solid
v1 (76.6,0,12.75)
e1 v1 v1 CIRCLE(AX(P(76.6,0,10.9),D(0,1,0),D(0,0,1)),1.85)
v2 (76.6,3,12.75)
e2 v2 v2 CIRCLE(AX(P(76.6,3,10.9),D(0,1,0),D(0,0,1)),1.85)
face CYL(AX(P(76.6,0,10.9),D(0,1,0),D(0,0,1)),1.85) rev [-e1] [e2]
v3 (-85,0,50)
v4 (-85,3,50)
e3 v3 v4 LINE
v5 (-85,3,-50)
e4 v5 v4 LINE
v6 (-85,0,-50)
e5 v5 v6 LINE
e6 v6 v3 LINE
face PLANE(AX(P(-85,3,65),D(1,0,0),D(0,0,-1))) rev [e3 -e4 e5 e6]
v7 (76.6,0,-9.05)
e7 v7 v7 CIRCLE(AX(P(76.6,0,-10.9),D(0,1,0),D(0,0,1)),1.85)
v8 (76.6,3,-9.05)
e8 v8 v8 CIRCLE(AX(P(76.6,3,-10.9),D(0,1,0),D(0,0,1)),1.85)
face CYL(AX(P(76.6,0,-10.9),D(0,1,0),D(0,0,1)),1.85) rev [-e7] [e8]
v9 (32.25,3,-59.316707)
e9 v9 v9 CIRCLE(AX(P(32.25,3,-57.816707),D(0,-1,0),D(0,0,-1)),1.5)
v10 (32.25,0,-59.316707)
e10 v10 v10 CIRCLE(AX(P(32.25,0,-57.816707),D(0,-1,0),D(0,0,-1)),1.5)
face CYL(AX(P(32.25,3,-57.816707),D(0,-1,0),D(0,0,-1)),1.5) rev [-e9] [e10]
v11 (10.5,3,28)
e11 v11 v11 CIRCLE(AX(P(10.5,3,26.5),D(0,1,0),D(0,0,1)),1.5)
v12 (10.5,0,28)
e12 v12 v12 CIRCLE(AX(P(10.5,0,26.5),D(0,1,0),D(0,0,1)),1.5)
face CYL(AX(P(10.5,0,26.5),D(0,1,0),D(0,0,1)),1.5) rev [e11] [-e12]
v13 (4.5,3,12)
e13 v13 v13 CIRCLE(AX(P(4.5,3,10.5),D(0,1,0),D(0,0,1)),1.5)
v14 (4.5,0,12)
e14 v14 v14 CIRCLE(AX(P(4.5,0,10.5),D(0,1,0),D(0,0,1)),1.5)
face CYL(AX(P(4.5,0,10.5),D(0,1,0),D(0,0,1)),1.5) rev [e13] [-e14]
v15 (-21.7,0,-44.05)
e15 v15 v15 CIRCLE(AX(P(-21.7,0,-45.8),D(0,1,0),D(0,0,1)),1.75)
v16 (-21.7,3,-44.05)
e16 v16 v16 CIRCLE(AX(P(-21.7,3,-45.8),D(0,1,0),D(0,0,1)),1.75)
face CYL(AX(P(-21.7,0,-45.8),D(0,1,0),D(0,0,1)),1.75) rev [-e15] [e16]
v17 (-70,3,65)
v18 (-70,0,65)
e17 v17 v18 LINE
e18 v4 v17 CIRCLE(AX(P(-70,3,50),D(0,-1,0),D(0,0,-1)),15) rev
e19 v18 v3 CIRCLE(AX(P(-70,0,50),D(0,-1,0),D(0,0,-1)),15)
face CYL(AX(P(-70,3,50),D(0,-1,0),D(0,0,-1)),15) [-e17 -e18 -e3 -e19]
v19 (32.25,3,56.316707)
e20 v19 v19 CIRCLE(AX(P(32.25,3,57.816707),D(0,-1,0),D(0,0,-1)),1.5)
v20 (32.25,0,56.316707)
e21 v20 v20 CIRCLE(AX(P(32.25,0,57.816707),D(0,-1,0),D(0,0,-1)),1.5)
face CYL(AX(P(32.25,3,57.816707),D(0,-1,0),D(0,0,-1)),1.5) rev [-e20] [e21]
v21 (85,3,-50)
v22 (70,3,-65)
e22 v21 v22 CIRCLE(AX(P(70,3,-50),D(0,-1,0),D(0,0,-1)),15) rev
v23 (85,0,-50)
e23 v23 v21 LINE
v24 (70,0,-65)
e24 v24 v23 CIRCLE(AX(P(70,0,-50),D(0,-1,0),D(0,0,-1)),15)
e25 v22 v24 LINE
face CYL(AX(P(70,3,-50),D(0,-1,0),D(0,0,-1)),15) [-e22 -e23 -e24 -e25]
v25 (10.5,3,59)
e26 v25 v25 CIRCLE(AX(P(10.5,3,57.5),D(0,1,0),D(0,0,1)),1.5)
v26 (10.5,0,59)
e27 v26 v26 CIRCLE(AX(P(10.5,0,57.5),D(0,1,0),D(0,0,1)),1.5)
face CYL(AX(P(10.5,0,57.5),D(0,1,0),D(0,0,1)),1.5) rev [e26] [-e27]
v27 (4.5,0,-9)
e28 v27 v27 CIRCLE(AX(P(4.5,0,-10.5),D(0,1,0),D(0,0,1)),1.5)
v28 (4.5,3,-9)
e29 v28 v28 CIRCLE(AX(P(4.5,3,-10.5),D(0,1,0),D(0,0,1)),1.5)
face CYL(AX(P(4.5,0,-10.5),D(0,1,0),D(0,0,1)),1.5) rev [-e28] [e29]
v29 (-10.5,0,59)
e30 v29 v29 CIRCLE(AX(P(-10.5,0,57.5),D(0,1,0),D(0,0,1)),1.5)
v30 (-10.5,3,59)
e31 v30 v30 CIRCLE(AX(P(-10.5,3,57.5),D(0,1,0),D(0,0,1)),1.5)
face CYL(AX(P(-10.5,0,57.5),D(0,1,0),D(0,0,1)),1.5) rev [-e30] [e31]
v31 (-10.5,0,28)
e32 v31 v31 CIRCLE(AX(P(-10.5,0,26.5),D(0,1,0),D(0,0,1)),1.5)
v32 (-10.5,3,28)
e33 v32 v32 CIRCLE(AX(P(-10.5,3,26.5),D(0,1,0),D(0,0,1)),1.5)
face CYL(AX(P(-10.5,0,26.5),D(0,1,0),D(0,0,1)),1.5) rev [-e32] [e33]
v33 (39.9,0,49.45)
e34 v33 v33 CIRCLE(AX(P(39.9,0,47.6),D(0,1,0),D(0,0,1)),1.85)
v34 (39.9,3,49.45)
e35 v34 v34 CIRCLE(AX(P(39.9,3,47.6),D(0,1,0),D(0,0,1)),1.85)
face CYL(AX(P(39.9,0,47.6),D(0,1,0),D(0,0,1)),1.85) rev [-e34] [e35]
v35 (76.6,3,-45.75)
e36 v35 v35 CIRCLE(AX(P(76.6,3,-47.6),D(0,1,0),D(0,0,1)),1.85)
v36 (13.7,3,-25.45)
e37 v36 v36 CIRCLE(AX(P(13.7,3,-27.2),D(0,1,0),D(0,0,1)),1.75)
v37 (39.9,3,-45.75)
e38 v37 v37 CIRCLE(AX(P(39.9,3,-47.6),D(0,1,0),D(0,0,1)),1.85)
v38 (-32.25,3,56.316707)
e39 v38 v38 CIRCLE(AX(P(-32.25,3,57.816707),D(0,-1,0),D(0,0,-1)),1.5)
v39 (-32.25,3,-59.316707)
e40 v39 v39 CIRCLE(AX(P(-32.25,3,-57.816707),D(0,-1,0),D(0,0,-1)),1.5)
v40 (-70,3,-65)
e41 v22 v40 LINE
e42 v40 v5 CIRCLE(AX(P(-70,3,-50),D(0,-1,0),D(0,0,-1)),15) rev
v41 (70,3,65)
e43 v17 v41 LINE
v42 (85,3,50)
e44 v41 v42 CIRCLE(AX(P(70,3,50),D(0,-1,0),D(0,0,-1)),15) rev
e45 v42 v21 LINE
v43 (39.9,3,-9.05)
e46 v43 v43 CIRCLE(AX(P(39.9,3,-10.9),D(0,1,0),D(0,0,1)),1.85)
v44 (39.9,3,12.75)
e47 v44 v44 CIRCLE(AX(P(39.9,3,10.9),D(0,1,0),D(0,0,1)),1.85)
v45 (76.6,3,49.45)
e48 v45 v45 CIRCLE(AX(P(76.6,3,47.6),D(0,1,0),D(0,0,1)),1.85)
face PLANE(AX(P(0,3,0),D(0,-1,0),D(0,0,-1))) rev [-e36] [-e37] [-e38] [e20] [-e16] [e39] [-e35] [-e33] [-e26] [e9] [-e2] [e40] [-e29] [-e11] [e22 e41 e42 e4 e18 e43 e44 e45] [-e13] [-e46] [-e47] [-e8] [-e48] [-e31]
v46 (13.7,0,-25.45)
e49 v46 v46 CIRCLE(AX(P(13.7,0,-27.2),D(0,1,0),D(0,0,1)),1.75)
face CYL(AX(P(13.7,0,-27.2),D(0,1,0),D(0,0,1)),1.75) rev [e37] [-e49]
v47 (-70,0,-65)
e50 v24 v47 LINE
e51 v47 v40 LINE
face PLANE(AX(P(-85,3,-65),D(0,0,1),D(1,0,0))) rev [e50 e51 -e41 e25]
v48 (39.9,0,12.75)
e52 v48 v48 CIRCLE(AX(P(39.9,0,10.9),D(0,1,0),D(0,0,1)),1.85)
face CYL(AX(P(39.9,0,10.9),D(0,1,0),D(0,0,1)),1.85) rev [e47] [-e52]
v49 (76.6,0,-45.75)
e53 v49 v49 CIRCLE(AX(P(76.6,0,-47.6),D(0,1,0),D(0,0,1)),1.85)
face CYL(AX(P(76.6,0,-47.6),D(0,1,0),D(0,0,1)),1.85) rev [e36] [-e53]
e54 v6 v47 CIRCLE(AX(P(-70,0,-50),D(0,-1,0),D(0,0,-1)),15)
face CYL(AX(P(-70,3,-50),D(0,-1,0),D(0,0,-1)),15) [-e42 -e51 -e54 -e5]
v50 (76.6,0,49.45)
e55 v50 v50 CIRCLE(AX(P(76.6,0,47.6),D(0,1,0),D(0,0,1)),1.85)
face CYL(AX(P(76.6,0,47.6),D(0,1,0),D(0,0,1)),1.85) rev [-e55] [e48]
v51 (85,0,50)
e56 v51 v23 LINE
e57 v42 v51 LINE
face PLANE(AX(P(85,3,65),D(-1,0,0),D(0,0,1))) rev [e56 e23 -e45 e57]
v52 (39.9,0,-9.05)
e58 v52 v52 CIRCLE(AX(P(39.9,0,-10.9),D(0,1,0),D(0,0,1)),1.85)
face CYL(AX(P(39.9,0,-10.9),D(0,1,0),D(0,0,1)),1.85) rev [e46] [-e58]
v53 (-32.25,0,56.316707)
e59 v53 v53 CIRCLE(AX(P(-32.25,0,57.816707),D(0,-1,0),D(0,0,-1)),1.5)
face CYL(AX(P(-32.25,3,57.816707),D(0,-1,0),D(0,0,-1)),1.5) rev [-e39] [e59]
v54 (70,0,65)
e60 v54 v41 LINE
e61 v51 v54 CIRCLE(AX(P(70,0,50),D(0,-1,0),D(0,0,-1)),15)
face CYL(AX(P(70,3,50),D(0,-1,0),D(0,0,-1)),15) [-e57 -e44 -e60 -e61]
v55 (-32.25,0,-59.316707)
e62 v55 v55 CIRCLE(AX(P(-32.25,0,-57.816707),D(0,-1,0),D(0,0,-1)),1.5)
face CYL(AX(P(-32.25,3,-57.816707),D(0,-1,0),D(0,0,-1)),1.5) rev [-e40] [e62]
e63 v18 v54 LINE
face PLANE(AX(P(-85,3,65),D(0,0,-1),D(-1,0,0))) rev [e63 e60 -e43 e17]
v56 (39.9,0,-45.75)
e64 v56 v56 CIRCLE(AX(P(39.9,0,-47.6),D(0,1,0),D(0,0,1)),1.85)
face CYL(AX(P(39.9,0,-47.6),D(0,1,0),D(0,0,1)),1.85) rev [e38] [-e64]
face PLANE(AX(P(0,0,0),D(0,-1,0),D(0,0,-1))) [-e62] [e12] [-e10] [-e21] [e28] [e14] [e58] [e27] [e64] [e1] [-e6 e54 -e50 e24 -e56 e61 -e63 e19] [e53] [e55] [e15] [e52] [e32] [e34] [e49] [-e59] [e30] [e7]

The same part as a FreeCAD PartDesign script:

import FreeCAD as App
import Part
import Sketcher
Q = App.Units.Quantity


def edges_at(feature, points):
    """Names of the edges that pass closest to the given points."""
    edges = feature.Shape.Edges
    near = lambda p: min(range(len(edges)), key=lambda i: edges[i].distToShape(Part.Vertex(*p))[0])
    return sorted({f"Edge{near(p) + 1}" for p in points})


def add_polygon(sketch, points):
    """Adds a closed chain of lines whose ends are joined by coincident constraints."""
    first, n = sketch.GeometryCount, len(points)
    for a, b in zip(points, points[1:] + points[:1]):
        sketch.addGeometry(Part.LineSegment(App.Vector(*a, 0), App.Vector(*b, 0)), False)
    for i in range(n):
        sketch.addConstraint(Sketcher.Constraint("Coincident", first + i, 2, first + (i + 1) % n, 1))

doc = App.newDocument("Part")
params = doc.addObject("Spreadsheet::Sheet", "Params")
for row, (alias, value) in enumerate([
    ("sketch1_width", "170 mm"),
    ("sketch1_height", "130 mm"),
    ("pad1_length", "3 mm"),
    ("sketch2_diameter", "3 mm"),
    ("sketch3_diameter", "3 mm"),
    ("sketch3_diameter2", "3.5 mm"),
    ("sketch3_diameter3", "3.7 mm"),
    ("fillet_radius", "15 mm"),
], start=1):
    params.set(f"A{row}", alias)
    params.set(f"B{row}", "=" + value)
    params.setAlias(f"B{row}", alias)

body = doc.addObject("PartDesign::Body", "Body")

# Sketch on XZ plane
sketch1 = doc.addObject("Sketcher::SketchObject", "Sketch")
body.addObject(sketch1)
sketch1.AttachmentSupport = (doc.XZ_Plane, [""])
sketch1.MapMode = "FlatFace"
add_polygon(sketch1, [(-85, -65), (-85, 65), (85, 65), (85, -65)])  # lines 0-3
sketch1.addConstraint([
    Sketcher.Constraint("Vertical", 0),
    Sketcher.Constraint("Horizontal", 1),
    Sketcher.Constraint("Vertical", 2),
    Sketcher.Constraint("Horizontal", 3),
    Sketcher.Constraint("Symmetric", 0, 2, 2, 2, -1, 1),
    Sketcher.Constraint("DistanceX", 1, 1, 1, 2, Q("170 mm")),
    Sketcher.Constraint("DistanceY", 0, 1, 0, 2, Q("130 mm")),
])
sketch1.setExpression("Constraints[9]", "Params.sketch1_width")
sketch1.setExpression("Constraints[10]", "Params.sketch1_height")
pad1 = doc.addObject("PartDesign::Pad", "Pad")
body.addObject(pad1)
pad1.Profile = sketch1
pad1.setExpression("Length", "Params.pad1_length")
pad1.Reversed = True

# Sketch on XZ plane
sketch2 = doc.addObject("Sketcher::SketchObject", "Sketch001")
body.addObject(sketch2)
sketch2.AttachmentSupport = (doc.XZ_Plane, [""])
sketch2.MapMode = "FlatFace"
sketch2.addGeometry([
    Part.Circle(App.Vector(32.2, 57.8, 0), App.Vector(0, 0, 1), 1.5),
    Part.Circle(App.Vector(-32.2, -57.8, 0), App.Vector(0, 0, 1), 1.5),
    Part.Circle(App.Vector(-32.2, 57.8, 0), App.Vector(0, 0, 1), 1.5),
    Part.Circle(App.Vector(32.2, -57.8, 0), App.Vector(0, 0, 1), 1.5),
], False)
sketch2.addConstraint([
    Sketcher.Constraint("Equal", 0, 1),
    Sketcher.Constraint("Equal", 1, 2),
    Sketcher.Constraint("Equal", 2, 3),
    Sketcher.Constraint("Symmetric", 0, 3, 1, 3, -1, 1),
    Sketcher.Constraint("Symmetric", 2, 3, 3, 3, -1, 1),
    Sketcher.Constraint("Symmetric", 0, 3, 2, 3, -2),
    Sketcher.Constraint("Diameter", 0, Q("3 mm")),
    Sketcher.Constraint("DistanceX", 1, 3, 0, 3, Q("64.5 mm")),
    Sketcher.Constraint("DistanceY", -1, 1, 0, 3, Q("57.816707 mm")),
])
sketch2.setExpression("Constraints[6]", "Params.sketch2_diameter")
pocket1 = doc.addObject("PartDesign::Pocket", "Pocket")
body.addObject(pocket1)
pocket1.Profile = sketch2
pocket1.Type = "ThroughAll"

# Sketch on XZ plane
sketch3 = doc.addObject("Sketcher::SketchObject", "Sketch002")
body.addObject(sketch3)
sketch3.AttachmentSupport = (doc.XZ_Plane, [""])
sketch3.MapMode = "FlatFace"
sketch3.AttachmentOffset = App.Placement(App.Vector(0, 0, -3), App.Rotation())
sketch3.addGeometry([
    Part.Circle(App.Vector(13.7, -27.2, 0), App.Vector(0, 0, 1), 1.8),  # 0
    Part.Circle(App.Vector(-21.7, -45.8, 0), App.Vector(0, 0, 1), 1.8),  # 1
    Part.Circle(App.Vector(-10.5, 26.5, 0), App.Vector(0, 0, 1), 1.5),  # 2
    Part.Circle(App.Vector(10.5, 26.5, 0), App.Vector(0, 0, 1), 1.5),  # 3
    Part.Circle(App.Vector(10.5, 57.5, 0), App.Vector(0, 0, 1), 1.5),  # 4
    Part.Circle(App.Vector(-10.5, 57.5, 0), App.Vector(0, 0, 1), 1.5),  # 5
    Part.Circle(App.Vector(76.6, 10.9, 0), App.Vector(0, 0, 1), 1.9),  # 6
    Part.Circle(App.Vector(76.6, 47.6, 0), App.Vector(0, 0, 1), 1.9),  # 7
    Part.Circle(App.Vector(39.9, 47.6, 0), App.Vector(0, 0, 1), 1.9),  # 8
    Part.Circle(App.Vector(39.9, 10.9, 0), App.Vector(0, 0, 1), 1.9),  # 9
    Part.Circle(App.Vector(39.9, -47.6, 0), App.Vector(0, 0, 1), 1.9),  # 10
    Part.Circle(App.Vector(76.6, -47.6, 0), App.Vector(0, 0, 1), 1.9),  # 11
    Part.Circle(App.Vector(76.6, -10.9, 0), App.Vector(0, 0, 1), 1.9),  # 12
    Part.Circle(App.Vector(39.9, -10.9, 0), App.Vector(0, 0, 1), 1.9),  # 13
    Part.Circle(App.Vector(4.5, 10.5, 0), App.Vector(0, 0, 1), 1.5),  # 14
    Part.Circle(App.Vector(4.5, -10.5, 0), App.Vector(0, 0, 1), 1.5),  # 15
], False)
sketch3.addConstraint([
    Sketcher.Constraint("Equal", 0, 1),
    Sketcher.Constraint("Equal", 2, 3),
    Sketcher.Constraint("Equal", 3, 4),
    Sketcher.Constraint("Equal", 4, 5),
    Sketcher.Constraint("Equal", 6, 7),
    Sketcher.Constraint("Equal", 7, 8),
    Sketcher.Constraint("Equal", 8, 9),
    Sketcher.Constraint("Equal", 9, 10),
    Sketcher.Constraint("Equal", 10, 11),
    Sketcher.Constraint("Equal", 11, 12),
    Sketcher.Constraint("Equal", 12, 13),
    Sketcher.Constraint("Equal", 5, 14),
    Sketcher.Constraint("Equal", 14, 15),
    Sketcher.Constraint("Symmetric", 2, 3, 3, 3, -2),
    Sketcher.Constraint("Symmetric", 4, 3, 5, 3, -2),
    Sketcher.Constraint("Symmetric", 8, 3, 10, 3, -1),
    Sketcher.Constraint("Symmetric", 7, 3, 11, 3, -1),
    Sketcher.Constraint("Symmetric", 6, 3, 12, 3, -1),
    Sketcher.Constraint("Symmetric", 9, 3, 13, 3, -1),
    Sketcher.Constraint("Symmetric", 14, 3, 15, 3, -1),
    Sketcher.Constraint("Horizontal", 7, 3, 8, 3),
    Sketcher.Constraint("Horizontal", 6, 3, 9, 3),
    Sketcher.Constraint("Vertical", 3, 3, 4, 3),
    Sketcher.Constraint("Vertical", 6, 3, 7, 3),
    Sketcher.Constraint("Vertical", 8, 3, 9, 3),
    Sketcher.Constraint("Diameter", 2, Q("3 mm")),
    Sketcher.Constraint("Diameter", 0, Q("3.5 mm")),
    Sketcher.Constraint("Diameter", 6, Q("3.7 mm")),
    Sketcher.Constraint("DistanceX", 2, 3, 3, 3, Q("21 mm")),
    Sketcher.Constraint("DistanceY", 3, 3, 4, 3, Q("31 mm")),
    Sketcher.Constraint("DistanceX", 14, 3, 3, 3, Q("6 mm")),
    Sketcher.Constraint("DistanceY", 14, 3, 3, 3, Q("16 mm")),
    Sketcher.Constraint("DistanceY", 15, 3, 14, 3, Q("21 mm")),
    Sketcher.Constraint("DistanceX", -1, 1, 0, 3, Q("13.7 mm")),
    Sketcher.Constraint("DistanceY", 0, 3, -1, 1, Q("27.2 mm")),
    Sketcher.Constraint("DistanceX", 1, 3, -1, 1, Q("21.7 mm")),
    Sketcher.Constraint("DistanceY", 1, 3, -1, 1, Q("45.8 mm")),
    Sketcher.Constraint("DistanceX", -1, 1, 6, 3, Q("76.6 mm")),
    Sketcher.Constraint("DistanceY", -1, 1, 6, 3, Q("10.9 mm")),
    Sketcher.Constraint("DistanceY", -1, 1, 7, 3, Q("47.6 mm")),
    Sketcher.Constraint("DistanceX", -1, 1, 8, 3, Q("39.9 mm")),
])
sketch3.setExpression("Constraints[25]", "Params.sketch3_diameter")
sketch3.setExpression("Constraints[26]", "Params.sketch3_diameter2")
sketch3.setExpression("Constraints[27]", "Params.sketch3_diameter3")
pocket2 = doc.addObject("PartDesign::Pocket", "Pocket001")
body.addObject(pocket2)
pocket2.Profile = sketch3
pocket2.Type = "ThroughAll"
pocket2.Reversed = True
doc.recompute()

fillet = doc.addObject("PartDesign::Fillet", "Fillet")
body.addObject(fillet)
fillet.Base = (pocket2, edges_at(pocket2, [
    (85, 1.5, 65),
    (-85, 1.5, 65),
    (-85, 1.5, -65),
    (85, 1.5, -65),
]))
fillet.setExpression("Radius", "Params.fillet_radius")

doc.recompute()
